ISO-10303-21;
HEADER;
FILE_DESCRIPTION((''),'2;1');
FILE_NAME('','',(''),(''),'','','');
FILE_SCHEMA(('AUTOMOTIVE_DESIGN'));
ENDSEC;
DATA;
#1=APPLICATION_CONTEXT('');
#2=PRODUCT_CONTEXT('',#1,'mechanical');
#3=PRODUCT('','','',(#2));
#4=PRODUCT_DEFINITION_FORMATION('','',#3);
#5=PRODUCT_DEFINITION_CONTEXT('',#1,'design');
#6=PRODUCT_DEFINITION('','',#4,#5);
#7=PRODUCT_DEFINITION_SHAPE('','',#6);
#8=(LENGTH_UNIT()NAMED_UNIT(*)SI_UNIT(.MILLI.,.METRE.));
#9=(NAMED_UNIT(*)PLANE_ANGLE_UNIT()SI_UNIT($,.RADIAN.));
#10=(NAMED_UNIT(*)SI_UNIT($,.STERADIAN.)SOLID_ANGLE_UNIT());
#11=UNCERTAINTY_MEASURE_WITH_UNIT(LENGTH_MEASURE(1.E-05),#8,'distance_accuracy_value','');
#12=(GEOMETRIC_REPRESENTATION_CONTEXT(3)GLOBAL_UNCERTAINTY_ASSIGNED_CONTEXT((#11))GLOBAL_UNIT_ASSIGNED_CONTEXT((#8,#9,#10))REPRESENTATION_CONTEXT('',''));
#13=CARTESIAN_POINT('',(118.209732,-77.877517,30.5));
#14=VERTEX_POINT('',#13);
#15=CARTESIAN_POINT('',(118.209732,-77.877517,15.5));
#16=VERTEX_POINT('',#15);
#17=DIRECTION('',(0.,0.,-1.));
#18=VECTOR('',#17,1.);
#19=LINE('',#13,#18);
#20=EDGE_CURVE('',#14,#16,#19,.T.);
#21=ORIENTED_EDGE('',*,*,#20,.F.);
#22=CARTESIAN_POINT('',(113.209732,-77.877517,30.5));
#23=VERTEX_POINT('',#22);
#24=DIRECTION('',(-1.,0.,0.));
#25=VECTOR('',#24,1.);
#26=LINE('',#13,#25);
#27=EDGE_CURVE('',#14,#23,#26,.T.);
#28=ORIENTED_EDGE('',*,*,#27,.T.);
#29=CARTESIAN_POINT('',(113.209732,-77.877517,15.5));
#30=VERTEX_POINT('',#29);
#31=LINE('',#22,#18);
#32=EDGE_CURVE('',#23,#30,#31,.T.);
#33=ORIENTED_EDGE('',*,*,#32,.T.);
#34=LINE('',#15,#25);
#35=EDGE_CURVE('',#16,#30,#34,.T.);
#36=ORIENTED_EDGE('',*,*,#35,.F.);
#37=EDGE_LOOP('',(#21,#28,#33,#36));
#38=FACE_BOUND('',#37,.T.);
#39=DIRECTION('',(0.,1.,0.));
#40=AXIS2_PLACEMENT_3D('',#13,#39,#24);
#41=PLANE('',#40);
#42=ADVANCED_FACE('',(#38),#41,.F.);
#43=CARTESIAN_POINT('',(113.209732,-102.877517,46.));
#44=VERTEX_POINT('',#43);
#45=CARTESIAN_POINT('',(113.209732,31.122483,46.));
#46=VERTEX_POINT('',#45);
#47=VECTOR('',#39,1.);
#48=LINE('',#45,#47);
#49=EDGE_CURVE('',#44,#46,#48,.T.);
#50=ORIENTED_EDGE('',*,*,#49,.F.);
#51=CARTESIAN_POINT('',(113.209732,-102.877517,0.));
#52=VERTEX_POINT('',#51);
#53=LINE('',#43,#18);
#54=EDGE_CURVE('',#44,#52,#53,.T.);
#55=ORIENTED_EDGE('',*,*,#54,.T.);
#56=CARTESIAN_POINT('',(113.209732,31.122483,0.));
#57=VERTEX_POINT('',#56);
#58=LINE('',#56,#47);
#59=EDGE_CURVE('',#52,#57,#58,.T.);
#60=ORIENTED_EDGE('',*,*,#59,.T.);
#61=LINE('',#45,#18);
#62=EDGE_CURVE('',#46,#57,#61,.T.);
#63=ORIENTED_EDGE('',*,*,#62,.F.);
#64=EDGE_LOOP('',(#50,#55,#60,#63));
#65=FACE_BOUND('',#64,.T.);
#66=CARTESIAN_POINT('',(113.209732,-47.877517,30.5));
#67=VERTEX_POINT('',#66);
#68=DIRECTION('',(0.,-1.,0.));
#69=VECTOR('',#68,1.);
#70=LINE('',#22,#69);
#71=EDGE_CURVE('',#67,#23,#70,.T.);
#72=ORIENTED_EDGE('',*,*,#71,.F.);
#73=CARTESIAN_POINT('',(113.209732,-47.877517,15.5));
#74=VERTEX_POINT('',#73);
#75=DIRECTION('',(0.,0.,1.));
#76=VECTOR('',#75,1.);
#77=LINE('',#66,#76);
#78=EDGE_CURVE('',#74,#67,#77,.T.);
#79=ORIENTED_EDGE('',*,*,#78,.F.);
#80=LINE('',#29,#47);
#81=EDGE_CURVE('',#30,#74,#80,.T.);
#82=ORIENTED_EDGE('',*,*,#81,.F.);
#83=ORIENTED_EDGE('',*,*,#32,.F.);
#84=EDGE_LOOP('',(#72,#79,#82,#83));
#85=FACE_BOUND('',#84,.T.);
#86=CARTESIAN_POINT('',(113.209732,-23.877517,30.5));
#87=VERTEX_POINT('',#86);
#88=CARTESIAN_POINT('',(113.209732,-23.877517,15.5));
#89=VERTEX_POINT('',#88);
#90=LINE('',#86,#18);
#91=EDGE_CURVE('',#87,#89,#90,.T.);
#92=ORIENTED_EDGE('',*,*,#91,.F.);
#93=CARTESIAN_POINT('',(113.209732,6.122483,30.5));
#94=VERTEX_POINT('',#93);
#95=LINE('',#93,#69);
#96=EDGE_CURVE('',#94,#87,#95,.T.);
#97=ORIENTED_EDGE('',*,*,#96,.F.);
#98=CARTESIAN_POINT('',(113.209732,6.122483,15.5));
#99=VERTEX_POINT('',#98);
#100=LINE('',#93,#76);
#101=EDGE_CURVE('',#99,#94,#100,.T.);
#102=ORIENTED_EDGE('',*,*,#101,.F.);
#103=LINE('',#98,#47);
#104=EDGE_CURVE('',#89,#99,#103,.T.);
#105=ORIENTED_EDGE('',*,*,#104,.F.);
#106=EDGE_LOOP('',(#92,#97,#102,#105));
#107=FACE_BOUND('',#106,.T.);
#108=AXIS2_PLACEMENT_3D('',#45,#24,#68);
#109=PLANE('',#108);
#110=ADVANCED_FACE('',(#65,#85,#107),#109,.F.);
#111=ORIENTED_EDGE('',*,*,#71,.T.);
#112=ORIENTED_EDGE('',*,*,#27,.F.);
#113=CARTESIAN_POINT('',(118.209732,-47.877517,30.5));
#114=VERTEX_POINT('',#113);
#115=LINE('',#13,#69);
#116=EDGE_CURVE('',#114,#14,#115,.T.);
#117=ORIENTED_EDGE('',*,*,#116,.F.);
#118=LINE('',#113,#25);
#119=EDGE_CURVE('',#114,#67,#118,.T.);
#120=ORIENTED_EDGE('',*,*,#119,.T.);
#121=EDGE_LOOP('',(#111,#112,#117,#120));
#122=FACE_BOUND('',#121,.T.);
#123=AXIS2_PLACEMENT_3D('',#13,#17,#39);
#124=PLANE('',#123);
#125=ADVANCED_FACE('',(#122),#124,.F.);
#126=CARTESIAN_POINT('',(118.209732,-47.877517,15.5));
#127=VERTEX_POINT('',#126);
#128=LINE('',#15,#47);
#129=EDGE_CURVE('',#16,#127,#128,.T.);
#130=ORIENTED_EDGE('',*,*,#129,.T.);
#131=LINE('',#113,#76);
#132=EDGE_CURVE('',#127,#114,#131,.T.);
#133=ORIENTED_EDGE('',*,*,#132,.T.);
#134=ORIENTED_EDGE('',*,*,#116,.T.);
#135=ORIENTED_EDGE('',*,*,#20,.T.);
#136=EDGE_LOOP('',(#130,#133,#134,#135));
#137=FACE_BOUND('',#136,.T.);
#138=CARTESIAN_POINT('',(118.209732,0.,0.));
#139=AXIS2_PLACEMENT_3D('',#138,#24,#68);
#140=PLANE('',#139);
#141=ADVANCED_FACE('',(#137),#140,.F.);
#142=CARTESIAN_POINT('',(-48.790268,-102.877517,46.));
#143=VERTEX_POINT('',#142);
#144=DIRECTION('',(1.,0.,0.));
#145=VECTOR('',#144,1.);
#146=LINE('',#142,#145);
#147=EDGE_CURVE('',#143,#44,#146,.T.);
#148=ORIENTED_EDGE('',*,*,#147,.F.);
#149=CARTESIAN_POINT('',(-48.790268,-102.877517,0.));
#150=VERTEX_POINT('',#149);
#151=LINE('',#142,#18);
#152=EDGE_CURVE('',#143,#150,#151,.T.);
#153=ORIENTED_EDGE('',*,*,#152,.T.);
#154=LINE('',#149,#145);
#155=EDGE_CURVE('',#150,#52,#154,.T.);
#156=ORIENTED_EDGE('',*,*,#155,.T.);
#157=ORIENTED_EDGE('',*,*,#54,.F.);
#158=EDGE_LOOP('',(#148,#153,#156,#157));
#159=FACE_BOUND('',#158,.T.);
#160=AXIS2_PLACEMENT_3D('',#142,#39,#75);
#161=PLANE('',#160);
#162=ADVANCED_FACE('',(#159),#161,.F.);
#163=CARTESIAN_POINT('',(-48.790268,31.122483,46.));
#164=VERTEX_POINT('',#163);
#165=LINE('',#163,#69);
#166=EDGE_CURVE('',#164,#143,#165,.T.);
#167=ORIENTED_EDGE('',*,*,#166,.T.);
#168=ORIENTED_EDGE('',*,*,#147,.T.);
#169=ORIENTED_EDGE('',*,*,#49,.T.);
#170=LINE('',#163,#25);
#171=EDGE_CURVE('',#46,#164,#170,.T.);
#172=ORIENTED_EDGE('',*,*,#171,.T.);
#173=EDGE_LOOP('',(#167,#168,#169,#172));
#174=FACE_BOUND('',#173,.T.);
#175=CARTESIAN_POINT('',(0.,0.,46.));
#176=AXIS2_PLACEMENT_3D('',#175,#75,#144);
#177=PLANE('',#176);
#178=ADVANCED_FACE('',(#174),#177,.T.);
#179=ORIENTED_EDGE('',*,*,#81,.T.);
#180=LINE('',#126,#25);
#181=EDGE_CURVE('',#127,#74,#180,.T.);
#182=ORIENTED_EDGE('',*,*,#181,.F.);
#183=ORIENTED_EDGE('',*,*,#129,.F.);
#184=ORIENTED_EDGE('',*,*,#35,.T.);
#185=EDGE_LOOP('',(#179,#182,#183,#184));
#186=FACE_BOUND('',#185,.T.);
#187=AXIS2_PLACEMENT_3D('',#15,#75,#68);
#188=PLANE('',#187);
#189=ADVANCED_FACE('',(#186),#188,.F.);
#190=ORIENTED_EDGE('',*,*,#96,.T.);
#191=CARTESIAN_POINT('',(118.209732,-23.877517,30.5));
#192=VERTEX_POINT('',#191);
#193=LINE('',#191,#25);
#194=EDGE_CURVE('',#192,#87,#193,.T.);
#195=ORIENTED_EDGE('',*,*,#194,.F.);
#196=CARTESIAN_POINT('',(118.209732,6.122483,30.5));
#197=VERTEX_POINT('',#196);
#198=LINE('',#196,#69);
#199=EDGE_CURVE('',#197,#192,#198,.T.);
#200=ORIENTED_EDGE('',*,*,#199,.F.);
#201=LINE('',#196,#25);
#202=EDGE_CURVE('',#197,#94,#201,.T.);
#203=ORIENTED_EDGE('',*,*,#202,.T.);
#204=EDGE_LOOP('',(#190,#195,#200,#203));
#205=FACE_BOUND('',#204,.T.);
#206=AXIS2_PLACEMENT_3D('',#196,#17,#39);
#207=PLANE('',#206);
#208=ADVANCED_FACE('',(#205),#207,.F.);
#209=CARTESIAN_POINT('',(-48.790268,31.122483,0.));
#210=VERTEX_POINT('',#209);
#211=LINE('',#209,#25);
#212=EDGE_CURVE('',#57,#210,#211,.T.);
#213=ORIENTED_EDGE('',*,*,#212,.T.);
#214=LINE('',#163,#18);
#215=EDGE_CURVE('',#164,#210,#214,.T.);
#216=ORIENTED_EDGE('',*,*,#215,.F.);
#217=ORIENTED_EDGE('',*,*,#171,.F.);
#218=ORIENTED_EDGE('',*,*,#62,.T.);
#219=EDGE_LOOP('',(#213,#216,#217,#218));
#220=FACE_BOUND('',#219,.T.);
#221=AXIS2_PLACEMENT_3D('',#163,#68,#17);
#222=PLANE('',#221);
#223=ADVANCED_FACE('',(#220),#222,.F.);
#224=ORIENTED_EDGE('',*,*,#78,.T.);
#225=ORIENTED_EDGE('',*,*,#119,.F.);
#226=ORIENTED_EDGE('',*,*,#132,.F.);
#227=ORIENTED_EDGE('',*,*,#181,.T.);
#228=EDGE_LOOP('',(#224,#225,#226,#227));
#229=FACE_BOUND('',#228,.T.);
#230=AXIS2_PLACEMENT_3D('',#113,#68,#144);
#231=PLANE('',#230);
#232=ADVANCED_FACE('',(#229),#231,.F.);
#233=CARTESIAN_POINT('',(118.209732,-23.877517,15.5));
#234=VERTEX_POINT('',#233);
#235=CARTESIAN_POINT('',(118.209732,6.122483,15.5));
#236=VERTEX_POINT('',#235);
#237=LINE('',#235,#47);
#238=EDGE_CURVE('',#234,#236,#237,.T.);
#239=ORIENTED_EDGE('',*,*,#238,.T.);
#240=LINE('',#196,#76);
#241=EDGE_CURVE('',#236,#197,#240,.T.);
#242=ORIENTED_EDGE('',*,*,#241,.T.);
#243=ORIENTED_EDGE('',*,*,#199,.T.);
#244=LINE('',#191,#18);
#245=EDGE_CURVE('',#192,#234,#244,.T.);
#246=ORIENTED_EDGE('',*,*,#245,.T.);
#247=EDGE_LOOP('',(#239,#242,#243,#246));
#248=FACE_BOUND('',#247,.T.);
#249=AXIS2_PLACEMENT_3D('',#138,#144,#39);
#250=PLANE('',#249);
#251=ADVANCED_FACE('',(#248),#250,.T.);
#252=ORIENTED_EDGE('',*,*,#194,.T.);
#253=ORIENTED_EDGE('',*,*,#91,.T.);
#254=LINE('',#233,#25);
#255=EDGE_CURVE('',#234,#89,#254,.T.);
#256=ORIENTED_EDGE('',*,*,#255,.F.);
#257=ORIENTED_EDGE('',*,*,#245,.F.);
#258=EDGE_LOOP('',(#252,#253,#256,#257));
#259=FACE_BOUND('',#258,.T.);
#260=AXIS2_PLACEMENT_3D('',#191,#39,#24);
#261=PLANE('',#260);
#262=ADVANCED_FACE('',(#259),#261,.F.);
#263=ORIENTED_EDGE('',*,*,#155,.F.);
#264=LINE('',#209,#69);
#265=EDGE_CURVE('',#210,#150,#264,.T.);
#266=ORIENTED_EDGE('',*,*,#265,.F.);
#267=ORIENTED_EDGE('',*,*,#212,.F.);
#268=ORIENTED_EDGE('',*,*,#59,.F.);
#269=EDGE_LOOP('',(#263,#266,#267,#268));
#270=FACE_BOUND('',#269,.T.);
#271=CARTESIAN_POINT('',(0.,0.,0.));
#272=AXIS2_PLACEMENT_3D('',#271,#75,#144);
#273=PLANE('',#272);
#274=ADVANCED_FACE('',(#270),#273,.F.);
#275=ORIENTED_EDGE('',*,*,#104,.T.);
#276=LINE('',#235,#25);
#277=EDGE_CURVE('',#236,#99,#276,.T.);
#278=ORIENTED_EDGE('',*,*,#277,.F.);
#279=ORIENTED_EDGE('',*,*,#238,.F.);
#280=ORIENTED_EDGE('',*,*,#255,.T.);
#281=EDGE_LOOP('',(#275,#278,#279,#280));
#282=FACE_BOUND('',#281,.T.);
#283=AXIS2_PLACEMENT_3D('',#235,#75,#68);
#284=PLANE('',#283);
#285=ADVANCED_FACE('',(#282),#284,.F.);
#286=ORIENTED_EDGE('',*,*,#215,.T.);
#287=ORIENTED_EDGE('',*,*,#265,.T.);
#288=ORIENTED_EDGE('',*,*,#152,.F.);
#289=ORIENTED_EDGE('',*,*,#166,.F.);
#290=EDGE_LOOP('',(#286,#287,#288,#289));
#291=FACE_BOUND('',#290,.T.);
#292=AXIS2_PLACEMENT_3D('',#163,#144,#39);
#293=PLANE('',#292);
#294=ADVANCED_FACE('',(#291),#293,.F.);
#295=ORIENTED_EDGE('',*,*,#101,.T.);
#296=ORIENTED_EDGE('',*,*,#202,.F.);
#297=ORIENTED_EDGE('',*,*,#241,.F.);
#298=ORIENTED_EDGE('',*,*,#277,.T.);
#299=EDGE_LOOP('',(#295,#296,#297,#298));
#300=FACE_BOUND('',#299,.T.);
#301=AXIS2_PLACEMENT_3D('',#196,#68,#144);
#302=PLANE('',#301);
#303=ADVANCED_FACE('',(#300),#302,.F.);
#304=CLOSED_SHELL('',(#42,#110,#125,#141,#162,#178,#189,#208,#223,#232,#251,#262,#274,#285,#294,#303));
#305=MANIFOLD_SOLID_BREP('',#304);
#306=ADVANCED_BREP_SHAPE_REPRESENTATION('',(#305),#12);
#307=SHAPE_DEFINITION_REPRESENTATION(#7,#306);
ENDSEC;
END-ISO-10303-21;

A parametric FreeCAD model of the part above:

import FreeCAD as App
import Part
import Sketcher

V = App.Vector
Q = App.Units.Quantity

doc = App.newDocument("Part")
body = doc.addObject("PartDesign::Body", "Body")

# Sketch on XY plane
sketch1 = body.newObject("Sketcher::SketchObject", "Sketch")
sketch1.AttachmentSupport = (doc.getObject("XY_Plane"), [""])
sketch1.MapMode = "FlatFace"
sketch1.addGeometry([
    Part.LineSegment(V(-49, 31, 0), V(-49, -103, 0)),
    Part.LineSegment(V(-49, -103, 0), V(113, -103, 0)),
    Part.LineSegment(V(113, -103, 0), V(113, 31, 0)),
    Part.LineSegment(V(113, 31, 0), V(-49, 31, 0)),
], False)
sketch1.addConstraint([
    Sketcher.Constraint("Coincident", 0, 2, 1, 1),
    Sketcher.Constraint("Coincident", 1, 2, 2, 1),
    Sketcher.Constraint("Coincident", 2, 2, 3, 1),
    Sketcher.Constraint("Coincident", 3, 2, 0, 1),
    Sketcher.Constraint("Vertical", 0),
    Sketcher.Constraint("Horizontal", 1),
    Sketcher.Constraint("Vertical", 2),
    Sketcher.Constraint("Horizontal", 3),
    Sketcher.Constraint("DistanceX", 1, 1, 1, 2, Q("162 mm")),
    Sketcher.Constraint("DistanceY", 0, 2, 0, 1, Q("134 mm")),
    Sketcher.Constraint("DistanceX", 0, 2, -1, 1, Q("48.790268 mm")),
    Sketcher.Constraint("DistanceY", 0, 2, -1, 1, Q("102.877517 mm")),
])
pad1 = body.newObject("PartDesign::Pad", "Pad")
pad1.Profile = sketch1
pad1.Length = 46

# Sketch on YZ plane
sketch2 = body.newObject("Sketcher::SketchObject", "Sketch001")
sketch2.AttachmentSupport = (doc.getObject("YZ_Plane"), [""])
sketch2.MapMode = "FlatFace"
sketch2.AttachmentOffset = App.Placement(V(0, 0, 113.209732), App.Rotation())
sketch2.addGeometry([
    Part.LineSegment(V(6, 30, 0), V(-24, 30, 0)),  # 0
    Part.LineSegment(V(-24, 30, 0), V(-24, 16, 0)),  # 1
    Part.LineSegment(V(-24, 16, 0), V(6, 16, 0)),  # 2
    Part.LineSegment(V(6, 16, 0), V(6, 30, 0)),  # 3
    Part.LineSegment(V(-48, 30, 0), V(-78, 30, 0)),  # 4
    Part.LineSegment(V(-78, 30, 0), V(-78, 16, 0)),  # 5
    Part.LineSegment(V(-78, 16, 0), V(-48, 16, 0)),  # 6
    Part.LineSegment(V(-48, 16, 0), V(-48, 30, 0)),  # 7
], False)
sketch2.addConstraint([
    Sketcher.Constraint("Coincident", 0, 2, 1, 1),
    Sketcher.Constraint("Coincident", 1, 2, 2, 1),
    Sketcher.Constraint("Coincident", 2, 2, 3, 1),
    Sketcher.Constraint("Coincident", 3, 2, 0, 1),
    Sketcher.Constraint("Coincident", 4, 2, 5, 1),
    Sketcher.Constraint("Coincident", 5, 2, 6, 1),
    Sketcher.Constraint("Coincident", 6, 2, 7, 1),
    Sketcher.Constraint("Coincident", 7, 2, 4, 1),
    Sketcher.Constraint("Horizontal", 0),
    Sketcher.Constraint("Vertical", 1),
    Sketcher.Constraint("Horizontal", 2),
    Sketcher.Constraint("Vertical", 3),
    Sketcher.Constraint("Horizontal", 4),
    Sketcher.Constraint("Vertical", 5),
    Sketcher.Constraint("Horizontal", 6),
    Sketcher.Constraint("Vertical", 7),
    Sketcher.Constraint("Horizontal", 3, 2, 4, 2),
    Sketcher.Constraint("Horizontal", 2, 2, 5, 2),
    Sketcher.Constraint("Equal", 2, 4),
    Sketcher.Constraint("DistanceX", 0, 2, 0, 1, Q("30 mm")),
    Sketcher.Constraint("DistanceY", 1, 2, 1, 1, Q("15 mm")),
    Sketcher.Constraint("DistanceX", 4, 2, 0, 2, Q("54 mm")),
    Sketcher.Constraint("DistanceY", -1, 1, 0, 2, Q("30.5 mm")),
    Sketcher.Constraint("DistanceX", 0, 2, -1, 1, Q("23.877517 mm")),
])
pad2 = body.newObject("PartDesign::Pad", "Pad001")
pad2.Profile = sketch2
pad2.Length = 5

doc.recompute()
